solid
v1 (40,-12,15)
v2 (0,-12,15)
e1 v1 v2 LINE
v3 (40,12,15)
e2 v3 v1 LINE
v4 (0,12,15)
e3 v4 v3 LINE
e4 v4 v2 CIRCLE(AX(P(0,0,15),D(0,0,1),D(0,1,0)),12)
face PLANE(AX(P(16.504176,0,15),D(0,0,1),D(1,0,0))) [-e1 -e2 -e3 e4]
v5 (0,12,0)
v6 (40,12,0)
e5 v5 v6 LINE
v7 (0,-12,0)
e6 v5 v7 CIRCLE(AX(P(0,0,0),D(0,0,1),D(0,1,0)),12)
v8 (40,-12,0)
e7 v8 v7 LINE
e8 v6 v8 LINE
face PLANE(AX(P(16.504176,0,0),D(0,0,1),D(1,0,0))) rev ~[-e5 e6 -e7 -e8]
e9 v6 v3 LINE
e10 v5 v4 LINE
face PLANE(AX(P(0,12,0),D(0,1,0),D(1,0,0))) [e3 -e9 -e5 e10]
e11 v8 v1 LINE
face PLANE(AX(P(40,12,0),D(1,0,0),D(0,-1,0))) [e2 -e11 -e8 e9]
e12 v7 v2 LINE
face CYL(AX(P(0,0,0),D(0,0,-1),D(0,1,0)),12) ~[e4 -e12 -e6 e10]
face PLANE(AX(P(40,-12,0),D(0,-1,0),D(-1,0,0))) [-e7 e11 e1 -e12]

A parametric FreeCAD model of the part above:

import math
import FreeCAD as App
import Part
import Sketcher
Q = App.Units.Quantity

doc = App.newDocument("Part")
body = doc.addObject("PartDesign::Body", "Body")

# Sketch on XY plane
sketch1 = body.newObject("Sketcher::SketchObject", "Sketch")
sketch1.AttachmentSupport = (doc.getObject("XY_Plane"), [""])
sketch1.MapMode = "FlatFace"
sketch1.addGeometry([
    Part.ArcOfCircle(Part.Circle(App.Vector(0, 0, 0), App.Vector(0, 0, 1), 12), math.radians(90), math.radians(270)),
    Part.LineSegment(App.Vector(0, -12, 0), App.Vector(40, -12, 0)),
    Part.LineSegment(App.Vector(40, -12, 0), App.Vector(40, 12, 0)),
    Part.LineSegment(App.Vector(40, 12, 0), App.Vector(0, 12, 0)),
], False)
sketch1.addConstraint([
    Sketcher.Constraint("Tangent", 0, 2, 1, 1),
    Sketcher.Constraint("Coincident", 1, 2, 2, 1),
    Sketcher.Constraint("Coincident", 2, 2, 3, 1),
    Sketcher.Constraint("Tangent", 3, 2, 0, 1),
    Sketcher.Constraint("Horizontal", 1),
    Sketcher.Constraint("Vertical", 2),
    Sketcher.Constraint("Horizontal", 3),
    Sketcher.Constraint("Coincident", 0, 3, -1, 1),
    Sketcher.Constraint("Radius", 0, Q("12 mm")),
    Sketcher.Constraint("DistanceX", 1, 1, 1, 2, Q("40 mm")),
])
pad1 = body.newObject("PartDesign::Pad", "Pad")
pad1.Profile = sketch1
pad1.Length = 15

doc.recompute()
